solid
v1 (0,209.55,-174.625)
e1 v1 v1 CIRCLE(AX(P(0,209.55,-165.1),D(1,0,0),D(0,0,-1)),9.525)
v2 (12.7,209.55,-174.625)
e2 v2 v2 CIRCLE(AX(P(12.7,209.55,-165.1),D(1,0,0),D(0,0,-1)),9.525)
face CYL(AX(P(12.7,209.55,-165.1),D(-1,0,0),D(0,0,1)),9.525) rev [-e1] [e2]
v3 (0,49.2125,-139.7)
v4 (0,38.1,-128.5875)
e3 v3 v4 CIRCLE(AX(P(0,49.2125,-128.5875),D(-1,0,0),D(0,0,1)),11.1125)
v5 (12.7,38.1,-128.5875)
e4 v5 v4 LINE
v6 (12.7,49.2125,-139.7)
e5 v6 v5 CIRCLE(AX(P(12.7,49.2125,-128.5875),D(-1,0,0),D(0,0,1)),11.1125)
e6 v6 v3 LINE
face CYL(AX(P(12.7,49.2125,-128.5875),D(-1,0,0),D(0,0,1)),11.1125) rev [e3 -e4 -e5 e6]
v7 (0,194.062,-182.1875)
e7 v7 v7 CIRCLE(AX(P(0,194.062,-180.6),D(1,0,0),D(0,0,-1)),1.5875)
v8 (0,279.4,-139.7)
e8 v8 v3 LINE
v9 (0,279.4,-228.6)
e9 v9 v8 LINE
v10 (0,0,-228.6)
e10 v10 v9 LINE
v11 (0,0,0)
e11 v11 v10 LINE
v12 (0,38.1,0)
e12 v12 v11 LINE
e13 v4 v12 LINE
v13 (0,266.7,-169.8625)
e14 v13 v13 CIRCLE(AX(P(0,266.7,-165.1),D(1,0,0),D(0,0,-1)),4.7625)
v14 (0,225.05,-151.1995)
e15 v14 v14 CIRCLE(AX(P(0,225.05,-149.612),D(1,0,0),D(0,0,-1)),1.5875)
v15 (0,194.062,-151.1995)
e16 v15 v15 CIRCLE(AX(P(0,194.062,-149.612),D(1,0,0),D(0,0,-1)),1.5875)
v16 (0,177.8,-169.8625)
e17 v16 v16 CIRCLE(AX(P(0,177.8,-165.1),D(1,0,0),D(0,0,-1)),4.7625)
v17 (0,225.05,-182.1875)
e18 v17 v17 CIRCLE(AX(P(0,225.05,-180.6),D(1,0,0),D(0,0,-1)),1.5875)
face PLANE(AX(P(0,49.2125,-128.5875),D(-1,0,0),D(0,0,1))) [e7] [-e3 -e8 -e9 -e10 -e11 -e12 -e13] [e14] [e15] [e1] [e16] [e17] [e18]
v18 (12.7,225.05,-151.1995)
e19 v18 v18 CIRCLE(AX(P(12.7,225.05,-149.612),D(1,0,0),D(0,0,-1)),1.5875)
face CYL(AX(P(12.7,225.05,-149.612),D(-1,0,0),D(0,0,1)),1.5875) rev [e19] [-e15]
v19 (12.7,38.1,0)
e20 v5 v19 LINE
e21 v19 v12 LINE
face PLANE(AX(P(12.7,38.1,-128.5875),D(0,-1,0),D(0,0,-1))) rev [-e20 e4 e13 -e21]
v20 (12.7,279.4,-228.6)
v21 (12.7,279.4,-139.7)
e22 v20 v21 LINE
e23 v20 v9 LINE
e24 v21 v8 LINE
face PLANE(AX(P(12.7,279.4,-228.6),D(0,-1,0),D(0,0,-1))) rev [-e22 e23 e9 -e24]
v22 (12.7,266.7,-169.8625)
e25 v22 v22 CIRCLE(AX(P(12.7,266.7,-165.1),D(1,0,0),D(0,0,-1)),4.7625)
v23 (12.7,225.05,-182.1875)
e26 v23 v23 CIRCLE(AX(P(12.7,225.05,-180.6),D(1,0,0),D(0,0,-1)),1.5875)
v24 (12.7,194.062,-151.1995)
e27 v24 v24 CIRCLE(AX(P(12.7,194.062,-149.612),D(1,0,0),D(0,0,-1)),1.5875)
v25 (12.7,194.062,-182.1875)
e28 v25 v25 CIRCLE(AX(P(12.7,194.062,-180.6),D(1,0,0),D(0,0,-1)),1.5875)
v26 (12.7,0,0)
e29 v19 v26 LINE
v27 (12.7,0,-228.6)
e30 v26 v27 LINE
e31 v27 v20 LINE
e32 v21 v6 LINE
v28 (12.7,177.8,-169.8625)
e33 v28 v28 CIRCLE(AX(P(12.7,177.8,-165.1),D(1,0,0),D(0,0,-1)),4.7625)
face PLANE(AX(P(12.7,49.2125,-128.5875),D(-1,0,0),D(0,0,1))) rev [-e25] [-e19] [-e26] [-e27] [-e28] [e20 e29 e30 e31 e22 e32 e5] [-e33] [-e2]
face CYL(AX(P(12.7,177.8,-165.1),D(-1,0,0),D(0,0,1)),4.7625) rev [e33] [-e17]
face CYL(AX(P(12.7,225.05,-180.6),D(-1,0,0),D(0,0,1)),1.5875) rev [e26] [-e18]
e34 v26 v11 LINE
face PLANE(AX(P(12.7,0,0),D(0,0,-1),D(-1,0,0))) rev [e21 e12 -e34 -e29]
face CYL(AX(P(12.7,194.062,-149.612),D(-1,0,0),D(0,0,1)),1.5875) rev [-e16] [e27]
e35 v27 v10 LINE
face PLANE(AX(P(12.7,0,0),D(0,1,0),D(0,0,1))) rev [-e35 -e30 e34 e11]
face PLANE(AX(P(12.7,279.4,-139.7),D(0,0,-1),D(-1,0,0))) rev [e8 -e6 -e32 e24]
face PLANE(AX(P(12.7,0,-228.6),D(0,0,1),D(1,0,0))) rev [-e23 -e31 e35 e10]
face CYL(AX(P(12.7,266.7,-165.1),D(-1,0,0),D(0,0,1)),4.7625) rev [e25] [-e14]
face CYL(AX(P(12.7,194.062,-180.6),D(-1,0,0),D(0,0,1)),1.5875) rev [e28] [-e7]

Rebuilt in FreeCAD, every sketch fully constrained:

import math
import FreeCAD as App
import Part
import Sketcher

V = App.Vector
Q = App.Units.Quantity

doc = App.newDocument("Part")
params = doc.addObject("Spreadsheet::Sheet", "Params")
for row, (alias, value) in enumerate([
    ("sketch1_diameter", "0.75 in"),
    ("sketch1_width", "11 in"),
    ("sketch1_height", "9 in"),
    ("sketch1_diameter2", "0.125 in"),
    ("sketch1_diameter3", "0.375 in"),
    ("pad1_length", "0.5 in"),
], start=1):
    params.set(f"A{row}", alias)
    params.set(f"B{row}", "=" + value)
    params.setAlias(f"B{row}", alias)

body = doc.addObject("PartDesign::Body", "Body")

# Sketch on YZ plane
sketch1 = body.newObject("Sketcher::SketchObject", "Sketch")
sketch1.AttachmentSupport = (doc.getObject("YZ_Plane"), [""])
sketch1.MapMode = "FlatFace"
sketch1.addGeometry(Part.LineSegment(V(38.1, 0, 0), V(0, 0, 0)), False)
sketch1.addGeometry(Part.LineSegment(V(0, 0, 0), V(0, -228.6, 0)), False)
sketch1.addGeometry(Part.LineSegment(V(0, -228.6, 0), V(279.4, -228.6, 0)), False)
sketch1.addGeometry(Part.LineSegment(V(279.4, -228.6, 0), V(279.4, -139.7, 0)), False)
sketch1.addGeometry(Part.LineSegment(V(279.4, -139.7, 0), V(49.2, -139.7, 0)), False)
sketch1.addGeometry(Part.ArcOfCircle(Part.Circle(V(49.2, -128.6, 0), V(0, 0, 1), 11.1), math.radians(180), math.radians(270)), False)
sketch1.addGeometry(Part.LineSegment(V(38.1, -128.6, 0), V(38.1, 0, 0)), False)
sketch1.addGeometry(Part.Circle(V(194.1, -180.6, 0), V(0, 0, 1), 1.6), False)
sketch1.addGeometry(Part.Circle(V(177.8, -165.1, 0), V(0, 0, 1), 4.8), False)
sketch1.addGeometry(Part.Circle(V(194.1, -149.6, 0), V(0, 0, 1), 1.6), False)
sketch1.addGeometry(Part.Circle(V(209.6, -165.1, 0), V(0, 0, 1), 9.5), False)
sketch1.addGeometry(Part.Circle(V(225, -180.6, 0), V(0, 0, 1), 1.6), False)
sketch1.addGeometry(Part.Circle(V(225, -149.6, 0), V(0, 0, 1), 1.6), False)
sketch1.addGeometry(Part.Circle(V(266.7, -165.1, 0), V(0, 0, 1), 4.8), False)
sketch1.addConstraint(Sketcher.Constraint("Coincident", 0, 2, 1, 1))
sketch1.addConstraint(Sketcher.Constraint("Coincident", 1, 2, 2, 1))
sketch1.addConstraint(Sketcher.Constraint("Coincident", 2, 2, 3, 1))
sketch1.addConstraint(Sketcher.Constraint("Coincident", 3, 2, 4, 1))
sketch1.addConstraint(Sketcher.Constraint("Tangent", 4, 2, 5, 2))
sketch1.addConstraint(Sketcher.Constraint("Tangent", 5, 1, 6, 1))
sketch1.addConstraint(Sketcher.Constraint("Coincident", 6, 2, 0, 1))
sketch1.addConstraint(Sketcher.Constraint("Horizontal", 0))
sketch1.addConstraint(Sketcher.Constraint("Vertical", 1))
sketch1.addConstraint(Sketcher.Constraint("Horizontal", 2))
sketch1.addConstraint(Sketcher.Constraint("Vertical", 3))
sketch1.addConstraint(Sketcher.Constraint("Horizontal", 4))
sketch1.addConstraint(Sketcher.Constraint("Vertical", 6))
sketch1.addConstraint(Sketcher.Constraint("Coincident", 0, 2, -1, 1))
sketch1.addConstraint(Sketcher.Constraint("Equal", 7, 9))
sketch1.addConstraint(Sketcher.Constraint("Equal", 9, 11))
sketch1.addConstraint(Sketcher.Constraint("Equal", 11, 12))
sketch1.addConstraint(Sketcher.Constraint("Equal", 8, 13))
sketch1.addConstraint(Sketcher.Constraint("Horizontal", 8, 3, 10, 3))
sketch1.addConstraint(Sketcher.Constraint("Horizontal", 7, 3, 11, 3))
sketch1.addConstraint(Sketcher.Constraint("Horizontal", 9, 3, 12, 3))
sketch1.addConstraint(Sketcher.Constraint("Horizontal", 10, 3, 13, 3))
sketch1.addConstraint(Sketcher.Constraint("Vertical", 7, 3, 9, 3))
sketch1.addConstraint(Sketcher.Constraint("Vertical", 11, 3, 12, 3))
sketch1.addConstraint(Sketcher.Constraint("Diameter", 10, Q("0.75 in")))
sketch1.addConstraint(Sketcher.Constraint("DistanceX", 2, 1, 2, 2, Q("11 in")))
sketch1.addConstraint(Sketcher.Constraint("DistanceY", 1, 2, 1, 1, Q("9 in")))
sketch1.addConstraint(Sketcher.Constraint("Diameter", 7, Q("0.125 in")))
sketch1.addConstraint(Sketcher.Constraint("Diameter", 8, Q("0.375 in")))
sketch1.addConstraint(Sketcher.Constraint("DistanceX", 0, 2, 0, 1, Q("1.5 in")))
sketch1.addConstraint(Sketcher.Constraint("DistanceY", 3, 1, 3, 2, Q("3.5 in")))
sketch1.addConstraint(Sketcher.Constraint("DistanceX", -1, 1, 8, 3, Q("7 in")))
sketch1.addConstraint(Sketcher.Constraint("Radius", 5, Q("0.4375 in")))
sketch1.addConstraint(Sketcher.Constraint("DistanceY", 13, 3, 3, 2, Q("1 in")))
sketch1.addConstraint(Sketcher.Constraint("DistanceX", -1, 1, 13, 3, Q("10.5 in")))
sketch1.addConstraint(Sketcher.Constraint("DistanceX", -1, 1, 10, 3, Q("8.25 in")))
sketch1.addConstraint(Sketcher.Constraint("DistanceY", 7, 3, 9, 3, Q("1.22 in")))
sketch1.addConstraint(Sketcher.Constraint("DistanceX", 7, 3, 11, 3, Q("1.22 in")))
sketch1.addConstraint(Sketcher.Constraint("DistanceX", -1, 1, 7, 3, 194.062))
sketch1.addConstraint(Sketcher.Constraint("DistanceY", 7, 3, -1, 1, 180.6))
sketch1.setExpression("Constraints[24]", "Params.sketch1_diameter")
sketch1.setExpression("Constraints[25]", "Params.sketch1_width")
sketch1.setExpression("Constraints[26]", "Params.sketch1_height")
sketch1.setExpression("Constraints[27]", "Params.sketch1_diameter2")
sketch1.setExpression("Constraints[28]", "Params.sketch1_diameter3")
pad1 = body.newObject("PartDesign::Pad", "Pad")
pad1.Profile = sketch1
pad1.setExpression("Length", "Params.pad1_length")

doc.recompute()
